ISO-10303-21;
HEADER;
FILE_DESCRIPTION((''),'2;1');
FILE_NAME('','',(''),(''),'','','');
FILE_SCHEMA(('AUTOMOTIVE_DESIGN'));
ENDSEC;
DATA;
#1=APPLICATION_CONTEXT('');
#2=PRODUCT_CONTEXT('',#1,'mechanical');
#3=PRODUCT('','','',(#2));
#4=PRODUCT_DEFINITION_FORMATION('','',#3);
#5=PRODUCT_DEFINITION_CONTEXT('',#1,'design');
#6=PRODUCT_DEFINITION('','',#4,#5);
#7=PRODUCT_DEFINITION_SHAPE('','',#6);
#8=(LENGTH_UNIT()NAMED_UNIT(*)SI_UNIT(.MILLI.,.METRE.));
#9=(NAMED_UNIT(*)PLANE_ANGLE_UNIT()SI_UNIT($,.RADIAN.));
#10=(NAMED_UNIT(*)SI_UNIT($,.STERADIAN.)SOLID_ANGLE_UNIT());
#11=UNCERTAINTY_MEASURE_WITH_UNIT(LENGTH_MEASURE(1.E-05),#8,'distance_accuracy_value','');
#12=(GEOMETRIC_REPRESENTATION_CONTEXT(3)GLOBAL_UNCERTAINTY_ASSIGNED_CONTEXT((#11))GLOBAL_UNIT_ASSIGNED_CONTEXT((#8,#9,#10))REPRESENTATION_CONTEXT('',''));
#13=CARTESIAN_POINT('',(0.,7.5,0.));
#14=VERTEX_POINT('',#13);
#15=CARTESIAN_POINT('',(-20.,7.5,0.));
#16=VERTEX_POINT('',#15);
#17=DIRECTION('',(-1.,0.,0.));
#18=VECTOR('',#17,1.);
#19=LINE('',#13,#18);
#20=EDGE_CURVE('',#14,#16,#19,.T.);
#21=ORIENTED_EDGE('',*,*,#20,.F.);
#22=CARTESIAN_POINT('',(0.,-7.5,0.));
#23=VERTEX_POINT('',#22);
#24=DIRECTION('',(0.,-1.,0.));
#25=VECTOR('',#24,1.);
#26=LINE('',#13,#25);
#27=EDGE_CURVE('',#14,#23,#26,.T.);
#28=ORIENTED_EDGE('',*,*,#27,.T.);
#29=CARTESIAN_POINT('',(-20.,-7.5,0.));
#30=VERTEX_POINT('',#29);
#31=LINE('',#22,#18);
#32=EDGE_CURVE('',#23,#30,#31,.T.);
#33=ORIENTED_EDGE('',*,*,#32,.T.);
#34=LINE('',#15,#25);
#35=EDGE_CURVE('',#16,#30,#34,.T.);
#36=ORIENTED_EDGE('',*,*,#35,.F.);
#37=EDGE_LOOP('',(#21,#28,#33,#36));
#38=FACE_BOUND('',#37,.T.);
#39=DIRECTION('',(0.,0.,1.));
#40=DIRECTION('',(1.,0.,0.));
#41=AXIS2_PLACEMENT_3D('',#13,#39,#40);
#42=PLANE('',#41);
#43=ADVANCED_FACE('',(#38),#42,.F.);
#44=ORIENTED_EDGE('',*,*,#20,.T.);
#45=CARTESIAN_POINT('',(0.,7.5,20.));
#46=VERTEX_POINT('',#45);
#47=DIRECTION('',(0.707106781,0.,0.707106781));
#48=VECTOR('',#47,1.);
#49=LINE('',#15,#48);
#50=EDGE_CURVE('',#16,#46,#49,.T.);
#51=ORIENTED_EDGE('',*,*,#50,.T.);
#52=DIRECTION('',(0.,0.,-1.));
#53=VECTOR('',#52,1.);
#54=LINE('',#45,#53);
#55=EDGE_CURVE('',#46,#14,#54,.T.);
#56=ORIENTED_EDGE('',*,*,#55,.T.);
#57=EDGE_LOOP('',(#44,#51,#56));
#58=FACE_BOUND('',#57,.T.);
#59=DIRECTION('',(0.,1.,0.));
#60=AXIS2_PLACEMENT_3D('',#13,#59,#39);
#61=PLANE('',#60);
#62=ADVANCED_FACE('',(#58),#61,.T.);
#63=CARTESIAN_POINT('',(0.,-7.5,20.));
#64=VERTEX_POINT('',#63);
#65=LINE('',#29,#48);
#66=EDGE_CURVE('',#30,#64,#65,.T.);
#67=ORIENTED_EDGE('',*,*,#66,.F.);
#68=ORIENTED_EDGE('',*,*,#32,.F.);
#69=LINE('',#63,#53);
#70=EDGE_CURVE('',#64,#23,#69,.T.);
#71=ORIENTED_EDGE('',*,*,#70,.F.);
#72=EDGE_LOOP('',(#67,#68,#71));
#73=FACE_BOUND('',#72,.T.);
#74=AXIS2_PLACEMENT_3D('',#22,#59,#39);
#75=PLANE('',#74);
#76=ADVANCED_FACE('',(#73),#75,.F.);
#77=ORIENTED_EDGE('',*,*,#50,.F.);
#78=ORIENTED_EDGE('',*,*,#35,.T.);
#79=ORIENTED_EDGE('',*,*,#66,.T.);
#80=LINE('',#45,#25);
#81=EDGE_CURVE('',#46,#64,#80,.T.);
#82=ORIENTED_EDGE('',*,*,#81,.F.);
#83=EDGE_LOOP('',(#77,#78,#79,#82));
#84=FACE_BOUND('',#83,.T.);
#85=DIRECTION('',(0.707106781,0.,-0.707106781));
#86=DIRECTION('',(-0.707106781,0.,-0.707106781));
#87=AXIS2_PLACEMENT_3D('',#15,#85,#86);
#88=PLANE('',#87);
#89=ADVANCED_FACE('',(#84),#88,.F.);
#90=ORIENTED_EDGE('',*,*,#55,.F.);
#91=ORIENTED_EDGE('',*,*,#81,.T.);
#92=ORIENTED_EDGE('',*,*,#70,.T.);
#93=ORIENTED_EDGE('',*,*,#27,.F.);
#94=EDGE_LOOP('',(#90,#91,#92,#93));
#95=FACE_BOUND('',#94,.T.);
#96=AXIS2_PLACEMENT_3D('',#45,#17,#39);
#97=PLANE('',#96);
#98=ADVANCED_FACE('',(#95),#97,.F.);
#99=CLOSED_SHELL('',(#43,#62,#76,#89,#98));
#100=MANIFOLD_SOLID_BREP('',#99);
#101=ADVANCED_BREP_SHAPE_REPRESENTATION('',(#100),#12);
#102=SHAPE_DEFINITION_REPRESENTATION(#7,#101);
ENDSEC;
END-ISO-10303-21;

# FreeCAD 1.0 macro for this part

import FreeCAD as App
import Part
import Sketcher

doc = App.newDocument("Part")
body = doc.addObject("PartDesign::Body", "Body")

sketch1 = doc.addObject("Sketcher::SketchObject", "Sketch")
body.addObject(sketch1)
sketch1.AttachmentSupport = (doc.XZ_Plane, [""])
sketch1.MapMode = "FlatFace"
sketch1.addGeometry([
    Part.LineSegment(App.Vector(0, 0, 0), App.Vector(-20, 0, 0)),
    Part.LineSegment(App.Vector(-20, 0, 0), App.Vector(0, 20, 0)),
    Part.LineSegment(App.Vector(0, 20, 0), App.Vector(0, 0, 0)),
], False)
sketch1.addConstraint([
    Sketcher.Constraint("Coincident", 0, 2, 1, 1),
    Sketcher.Constraint("Coincident", 1, 2, 2, 1),
    Sketcher.Constraint("Coincident", 2, 2, 0, 1),
    Sketcher.Constraint("Horizontal", 0),
    Sketcher.Constraint("Vertical", 2),
    Sketcher.Constraint("Coincident", 2, 2, -1, 1),
    Sketcher.Constraint("Equal", 0, 2),
    Sketcher.Constraint("DistanceX", 0, 2, 0, 1, 20.0),
])
pad1 = doc.addObject("PartDesign::Pad", "Pad")
body.addObject(pad1)
pad1.Profile = sketch1
pad1.Length = 15
pad1.Midplane = True

doc.recompute()
